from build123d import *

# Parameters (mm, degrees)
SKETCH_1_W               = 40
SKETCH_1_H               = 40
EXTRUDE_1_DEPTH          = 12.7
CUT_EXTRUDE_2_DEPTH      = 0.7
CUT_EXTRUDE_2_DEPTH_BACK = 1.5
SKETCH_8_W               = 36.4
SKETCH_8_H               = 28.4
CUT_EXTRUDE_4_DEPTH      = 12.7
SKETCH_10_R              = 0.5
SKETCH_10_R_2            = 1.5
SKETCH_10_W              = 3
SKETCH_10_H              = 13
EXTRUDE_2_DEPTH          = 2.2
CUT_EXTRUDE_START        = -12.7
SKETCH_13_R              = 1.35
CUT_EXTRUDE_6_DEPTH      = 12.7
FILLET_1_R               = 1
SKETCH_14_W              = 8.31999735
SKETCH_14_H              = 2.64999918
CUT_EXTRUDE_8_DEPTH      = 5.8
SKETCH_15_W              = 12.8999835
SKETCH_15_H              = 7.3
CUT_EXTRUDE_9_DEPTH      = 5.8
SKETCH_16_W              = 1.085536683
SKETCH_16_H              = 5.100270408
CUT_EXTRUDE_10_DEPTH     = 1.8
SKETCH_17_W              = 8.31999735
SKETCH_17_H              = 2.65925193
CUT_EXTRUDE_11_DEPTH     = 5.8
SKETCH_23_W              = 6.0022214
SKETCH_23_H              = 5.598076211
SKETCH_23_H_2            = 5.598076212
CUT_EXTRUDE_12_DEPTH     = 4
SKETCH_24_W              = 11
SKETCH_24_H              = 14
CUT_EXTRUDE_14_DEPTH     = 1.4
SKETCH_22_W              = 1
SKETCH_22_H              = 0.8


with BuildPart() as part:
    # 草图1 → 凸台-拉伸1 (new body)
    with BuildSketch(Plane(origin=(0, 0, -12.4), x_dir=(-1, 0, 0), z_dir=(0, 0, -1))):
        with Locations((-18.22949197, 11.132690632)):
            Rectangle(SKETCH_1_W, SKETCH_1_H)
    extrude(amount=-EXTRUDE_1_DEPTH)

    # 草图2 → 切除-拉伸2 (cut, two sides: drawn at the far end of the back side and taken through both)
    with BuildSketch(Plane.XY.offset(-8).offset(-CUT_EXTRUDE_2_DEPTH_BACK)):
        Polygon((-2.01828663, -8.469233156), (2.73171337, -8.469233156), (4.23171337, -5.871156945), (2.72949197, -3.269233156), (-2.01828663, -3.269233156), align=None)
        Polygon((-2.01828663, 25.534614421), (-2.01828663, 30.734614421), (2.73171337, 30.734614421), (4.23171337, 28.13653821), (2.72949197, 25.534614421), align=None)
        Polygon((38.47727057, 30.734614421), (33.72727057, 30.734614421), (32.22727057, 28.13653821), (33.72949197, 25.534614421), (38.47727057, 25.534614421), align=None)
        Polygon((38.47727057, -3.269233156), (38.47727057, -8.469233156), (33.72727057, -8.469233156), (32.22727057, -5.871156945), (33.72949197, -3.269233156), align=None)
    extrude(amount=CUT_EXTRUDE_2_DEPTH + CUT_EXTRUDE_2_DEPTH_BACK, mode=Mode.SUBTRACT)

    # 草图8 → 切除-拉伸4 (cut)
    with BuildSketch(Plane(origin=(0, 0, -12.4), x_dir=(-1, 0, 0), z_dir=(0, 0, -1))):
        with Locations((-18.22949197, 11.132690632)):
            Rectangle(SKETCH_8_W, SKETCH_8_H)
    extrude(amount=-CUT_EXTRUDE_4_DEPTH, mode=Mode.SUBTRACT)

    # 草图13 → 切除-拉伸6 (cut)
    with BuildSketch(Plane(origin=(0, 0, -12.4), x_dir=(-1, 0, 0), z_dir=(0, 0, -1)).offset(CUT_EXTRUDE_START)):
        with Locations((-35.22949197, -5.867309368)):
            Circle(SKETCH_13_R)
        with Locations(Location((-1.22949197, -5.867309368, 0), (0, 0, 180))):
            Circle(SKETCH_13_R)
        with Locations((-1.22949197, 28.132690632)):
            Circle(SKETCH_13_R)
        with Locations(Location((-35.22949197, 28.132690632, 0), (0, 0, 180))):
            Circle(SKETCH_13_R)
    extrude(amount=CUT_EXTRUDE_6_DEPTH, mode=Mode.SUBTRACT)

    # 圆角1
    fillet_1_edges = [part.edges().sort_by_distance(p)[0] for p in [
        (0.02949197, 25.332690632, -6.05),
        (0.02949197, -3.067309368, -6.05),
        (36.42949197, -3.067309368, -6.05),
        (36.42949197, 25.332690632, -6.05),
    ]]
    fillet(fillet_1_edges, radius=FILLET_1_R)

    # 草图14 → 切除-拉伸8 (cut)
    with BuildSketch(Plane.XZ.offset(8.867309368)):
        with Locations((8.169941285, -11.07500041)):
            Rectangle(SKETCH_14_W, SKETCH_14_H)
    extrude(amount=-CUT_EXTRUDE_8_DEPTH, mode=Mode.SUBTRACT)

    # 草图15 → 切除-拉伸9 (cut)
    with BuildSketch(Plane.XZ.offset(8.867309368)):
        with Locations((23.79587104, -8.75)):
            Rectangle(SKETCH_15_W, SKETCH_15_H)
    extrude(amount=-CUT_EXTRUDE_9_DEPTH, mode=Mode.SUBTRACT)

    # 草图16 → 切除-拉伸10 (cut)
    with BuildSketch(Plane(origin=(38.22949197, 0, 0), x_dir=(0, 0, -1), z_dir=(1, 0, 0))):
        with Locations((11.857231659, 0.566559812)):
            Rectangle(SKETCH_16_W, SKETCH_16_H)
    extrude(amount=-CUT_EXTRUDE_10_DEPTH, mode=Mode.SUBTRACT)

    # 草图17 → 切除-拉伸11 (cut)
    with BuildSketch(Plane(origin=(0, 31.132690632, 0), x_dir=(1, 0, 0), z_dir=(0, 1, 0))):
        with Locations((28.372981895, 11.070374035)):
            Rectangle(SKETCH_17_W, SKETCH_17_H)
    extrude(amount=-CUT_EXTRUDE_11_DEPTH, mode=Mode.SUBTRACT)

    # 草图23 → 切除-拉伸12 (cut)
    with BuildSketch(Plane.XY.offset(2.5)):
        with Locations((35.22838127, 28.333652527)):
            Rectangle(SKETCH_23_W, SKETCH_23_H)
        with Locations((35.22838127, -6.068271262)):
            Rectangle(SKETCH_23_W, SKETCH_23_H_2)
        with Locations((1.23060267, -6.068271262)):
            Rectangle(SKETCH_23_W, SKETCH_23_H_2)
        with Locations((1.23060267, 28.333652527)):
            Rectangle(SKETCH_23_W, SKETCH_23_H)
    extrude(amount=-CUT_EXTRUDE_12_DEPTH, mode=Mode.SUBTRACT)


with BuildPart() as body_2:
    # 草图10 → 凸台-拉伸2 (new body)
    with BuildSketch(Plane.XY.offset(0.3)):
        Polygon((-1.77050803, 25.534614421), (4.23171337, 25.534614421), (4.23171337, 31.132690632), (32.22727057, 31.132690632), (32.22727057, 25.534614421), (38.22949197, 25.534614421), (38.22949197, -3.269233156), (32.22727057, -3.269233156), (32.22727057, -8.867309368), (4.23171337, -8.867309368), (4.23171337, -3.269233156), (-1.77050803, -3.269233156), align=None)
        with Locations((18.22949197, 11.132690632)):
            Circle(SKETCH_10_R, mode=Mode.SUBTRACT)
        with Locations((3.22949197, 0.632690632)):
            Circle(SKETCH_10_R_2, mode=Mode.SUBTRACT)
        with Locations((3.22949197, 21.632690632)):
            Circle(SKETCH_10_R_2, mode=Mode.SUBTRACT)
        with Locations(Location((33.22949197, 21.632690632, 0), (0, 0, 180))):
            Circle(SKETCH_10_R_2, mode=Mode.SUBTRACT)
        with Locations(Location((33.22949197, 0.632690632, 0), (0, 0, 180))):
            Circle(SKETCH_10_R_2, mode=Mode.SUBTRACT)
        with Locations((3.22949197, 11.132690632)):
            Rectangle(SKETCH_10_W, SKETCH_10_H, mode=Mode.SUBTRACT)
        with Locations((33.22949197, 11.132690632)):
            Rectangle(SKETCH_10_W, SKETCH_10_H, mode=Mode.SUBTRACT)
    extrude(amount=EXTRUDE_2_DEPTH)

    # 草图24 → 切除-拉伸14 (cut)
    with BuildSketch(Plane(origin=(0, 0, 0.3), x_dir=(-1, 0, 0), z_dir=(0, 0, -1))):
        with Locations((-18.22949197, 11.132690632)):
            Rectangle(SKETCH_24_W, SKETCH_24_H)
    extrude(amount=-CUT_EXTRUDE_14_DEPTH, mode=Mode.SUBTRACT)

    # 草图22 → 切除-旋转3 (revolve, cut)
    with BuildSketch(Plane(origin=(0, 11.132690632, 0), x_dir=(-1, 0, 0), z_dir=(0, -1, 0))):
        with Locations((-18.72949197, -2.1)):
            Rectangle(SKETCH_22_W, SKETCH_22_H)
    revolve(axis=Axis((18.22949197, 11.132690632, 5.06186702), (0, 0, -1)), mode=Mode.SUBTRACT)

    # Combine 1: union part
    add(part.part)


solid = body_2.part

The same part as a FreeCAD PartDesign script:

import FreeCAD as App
import Part
import Sketcher
Q = App.Units.Quantity


def edges_at(feature, points):
    """Names of the edges that pass closest to the given points."""
    edges = feature.Shape.Edges
    near = lambda p: min(range(len(edges)), key=lambda i: edges[i].distToShape(Part.Vertex(*p))[0])
    return sorted({f"Edge{near(p) + 1}" for p in points})


def add_polygon(sketch, points):
    """Adds a closed chain of lines whose ends are joined by coincident constraints."""
    first, n = sketch.GeometryCount, len(points)
    for a, b in zip(points, points[1:] + points[:1]):
        sketch.addGeometry(Part.LineSegment(App.Vector(*a, 0), App.Vector(*b, 0)), False)
    for i in range(n):
        sketch.addConstraint(Sketcher.Constraint("Coincident", first + i, 2, first + (i + 1) % n, 1))

doc = App.newDocument("Part")
body = doc.addObject("PartDesign::Body", "Body")

sketch1 = body.newObject("Sketcher::SketchObject", "Sketch")
sketch1.AttachmentSupport = (doc.getObject("XY_Plane"), [""])
sketch1.MapMode = "FlatFace"
sketch1.AttachmentOffset = App.Placement(App.Vector(0, 0, -12.4), App.Rotation())
add_polygon(sketch1, [(38, 31), (38, -9), (-2, -9), (-2, 31)])
sketch1.addConstraint([
    Sketcher.Constraint("Vertical", 0),
    Sketcher.Constraint("Horizontal", 1),
    Sketcher.Constraint("Vertical", 2),
    Sketcher.Constraint("Horizontal", 3),
    Sketcher.Constraint("Equal", 3, 0),
    Sketcher.Constraint("DistanceX", 1, 2, 1, 1, Q("40 mm")),
    Sketcher.Constraint("DistanceX", -1, 1, 0, 2, Q("38.229492 mm")),
    Sketcher.Constraint("DistanceY", 0, 2, -1, 1, Q("8.867309 mm")),
])
pad1 = body.newObject("PartDesign::Pad", "Pad")
pad1.Profile = sketch1
pad1.Length = 12.7

sketch2 = body.newObject("Sketcher::SketchObject", "Sketch001")
sketch2.AttachmentSupport = (doc.getObject("XY_Plane"), [""])
sketch2.MapMode = "FlatFace"
sketch2.AttachmentOffset = App.Placement(App.Vector(0, 0, -8), App.Rotation())
add_polygon(sketch2, [(-2, -8.5), (2.7, -8.5), (4.2, -5.9), (2.7, -3.3), (-2, -3.3)])
add_polygon(sketch2, [(-2, 30.7), (-2, 25.5), (2.7, 25.5), (4.2, 28.1), (2.7, 30.7)])
add_polygon(sketch2, [(38.5, 30.7), (33.7, 30.7), (32.2, 28.1), (33.7, 25.5), (38.5, 25.5)])
add_polygon(sketch2, [(38.5, -8.5), (38.5, -3.3), (33.7, -3.3), (32.2, -5.9), (33.7, -8.5)])
sketch2.addConstraint([
    Sketcher.Constraint("Horizontal", 0),
    Sketcher.Constraint("Horizontal", 3),
    Sketcher.Constraint("Vertical", 4),
    Sketcher.Constraint("Vertical", 5),
    Sketcher.Constraint("Horizontal", 6),
    Sketcher.Constraint("Horizontal", 9),
    Sketcher.Constraint("Horizontal", 10),
    Sketcher.Constraint("Horizontal", 13),
    Sketcher.Constraint("Vertical", 14),
    Sketcher.Constraint("Vertical", 15),
    Sketcher.Constraint("Horizontal", 16),
    Sketcher.Constraint("Horizontal", 19),
    Sketcher.Constraint("Parallel", 1, 7),
    Sketcher.Constraint("Parallel", 2, 8),
    Sketcher.Constraint("Parallel", 7, 11),
    Sketcher.Constraint("Parallel", 8, 12),
    Sketcher.Constraint("Parallel", 11, 17),
    Sketcher.Constraint("Parallel", 12, 18),
    Sketcher.Constraint("Horizontal", 9, 2, 10, 2),
    Sketcher.Constraint("Horizontal", 7, 2, 11, 2),
    Sketcher.Constraint("Horizontal", 6, 2, 12, 2),
    Sketcher.Constraint("Horizontal", 3, 2, 15, 2),
    Sketcher.Constraint("Horizontal", 1, 2, 17, 2),
    Sketcher.Constraint("Horizontal", 4, 2, 18, 2),
    Sketcher.Constraint("Vertical", 4, 2, 5, 2),
    Sketcher.Constraint("Vertical", 2, 2, 6, 2),
    Sketcher.Constraint("Vertical", 1, 2, 7, 2),
    Sketcher.Constraint("Vertical", 0, 2, 8, 2),
    Sketcher.Constraint("Vertical", 14, 2, 15, 2),
    Sketcher.Constraint("Vertical", 12, 2, 16, 2),
    Sketcher.Constraint("Vertical", 11, 2, 17, 2),
    Sketcher.Constraint("Equal", 9, 10),
    Sketcher.Constraint("Angle", 1, Q("60 deg")),
    Sketcher.Constraint("Distance", 1, Q("3 mm")),
    Sketcher.Constraint("DistanceY", 4, 2, 4, 1, Q("5.2 mm")),
    Sketcher.Constraint("DistanceX", 6, 2, 12, 2, Q("31 mm")),
    Sketcher.Constraint("DistanceX", 0, 1, 0, 2, Q("4.75 mm")),
    Sketcher.Constraint("DistanceX", -1, 1, 2, 2, Q("2.729492 mm")),
    Sketcher.Constraint("DistanceY", -1, 1, 7, 2, Q("28.136538 mm")),
    Sketcher.Constraint("DistanceY", 1, 2, 5, 2, Q("31.405771 mm")),
])
pocket1 = body.newObject("PartDesign::Pocket", "Pocket")
pocket1.Profile = sketch2
pocket1.Type = "TwoLengths"
pocket1.Length = 0.7
pocket1.Length2 = 1.5
pocket1.Reversed = True

sketch3 = body.newObject("Sketcher::SketchObject", "Sketch002")
sketch3.AttachmentSupport = (doc.getObject("XY_Plane"), [""])
sketch3.MapMode = "FlatFace"
sketch3.AttachmentOffset = App.Placement(App.Vector(0, 0, -12.4), App.Rotation())
add_polygon(sketch3, [(36, 25), (36, -3), (0, -3), (0, 25)])
sketch3.addConstraint([
    Sketcher.Constraint("Vertical", 0),
    Sketcher.Constraint("Horizontal", 1),
    Sketcher.Constraint("Vertical", 2),
    Sketcher.Constraint("Horizontal", 3),
    Sketcher.Constraint("DistanceX", 1, 2, 1, 1, Q("36.4 mm")),
    Sketcher.Constraint("DistanceY", 0, 2, 0, 1, Q("28.4 mm")),
    Sketcher.Constraint("DistanceX", -1, 1, 0, 2, Q("36.429492 mm")),
    Sketcher.Constraint("DistanceY", 0, 2, -1, 1, Q("3.067309 mm")),
])
pocket2 = body.newObject("PartDesign::Pocket", "Pocket001")
pocket2.Profile = sketch3
pocket2.Length = 12.7
pocket2.Reversed = True

sketch4 = body.newObject("Sketcher::SketchObject", "Sketch003")
sketch4.AttachmentSupport = (doc.getObject("XY_Plane"), [""])
sketch4.MapMode = "FlatFace"
sketch4.AttachmentOffset = App.Placement(App.Vector(0, 0, 0.3), App.Rotation())
sketch4.addGeometry([
    Part.Circle(App.Vector(35.2, -5.9, 0), App.Vector(0, 0, 1), 1.4),
    Part.Circle(App.Vector(1.2, -5.9, 0), App.Vector(0, 0, 1), 1.4),
    Part.Circle(App.Vector(1.2, 28.1, 0), App.Vector(0, 0, 1), 1.4),
    Part.Circle(App.Vector(35.2, 28.1, 0), App.Vector(0, 0, 1), 1.4),
], False)
sketch4.addConstraint([
    Sketcher.Constraint("Equal", 0, 1),
    Sketcher.Constraint("Equal", 1, 2),
    Sketcher.Constraint("Equal", 2, 3),
    Sketcher.Constraint("Horizontal", 0, 3, 1, 3),
    Sketcher.Constraint("Horizontal", 2, 3, 3, 3),
    Sketcher.Constraint("Vertical", 1, 3, 2, 3),
    Sketcher.Constraint("Vertical", 0, 3, 3, 3),
    Sketcher.Constraint("Diameter", 0, Q("2.7 mm")),
    Sketcher.Constraint("DistanceX", 1, 3, 0, 3, Q("34 mm")),
    Sketcher.Constraint("DistanceY", 1, 3, 2, 3, Q("34 mm")),
    Sketcher.Constraint("DistanceX", -1, 1, 0, 3, Q("35.229492 mm")),
    Sketcher.Constraint("DistanceY", 0, 3, -1, 1, Q("5.867309 mm")),
])
pocket3 = body.newObject("PartDesign::Pocket", "Pocket002")
pocket3.Profile = sketch4
pocket3.Length = 12.7
doc.recompute()

fillet = body.newObject("PartDesign::Fillet", "Fillet")
fillet.Base = (pocket3, edges_at(pocket3, [
    (0.029, 25.333, -6.05),
    (0.029, -3.067, -6.05),
    (36.429, -3.067, -6.05),
    (36.429, 25.333, -6.05),
]))
fillet.Radius = 1

sketch5 = body.newObject("Sketcher::SketchObject", "Sketch004")
sketch5.AttachmentSupport = (doc.getObject("XZ_Plane"), [""])
sketch5.MapMode = "FlatFace"
sketch5.AttachmentOffset = App.Placement(App.Vector(0, 0, 8.867309), App.Rotation())
add_polygon(sketch5, [(4, -9.8), (4, -12.4), (12.3, -12.4), (12.3, -9.8)])
sketch5.addConstraint([
    Sketcher.Constraint("Vertical", 0),
    Sketcher.Constraint("Horizontal", 1),
    Sketcher.Constraint("Vertical", 2),
    Sketcher.Constraint("Horizontal", 3),
    Sketcher.Constraint("DistanceY", 0, 2, 0, 1, Q("2.649999 mm")),
    Sketcher.Constraint("DistanceY", 0, 2, -1, 1, Q("12.4 mm")),
    Sketcher.Constraint("DistanceX", 1, 1, 1, 2, Q("8.319997 mm")),
    Sketcher.Constraint("DistanceX", -1, 1, 1, 2, Q("12.32994 mm")),
])
pocket4 = body.newObject("PartDesign::Pocket", "Pocket003")
pocket4.Profile = sketch5
pocket4.Length = 5.8

sketch6 = body.newObject("Sketcher::SketchObject", "Sketch005")
sketch6.AttachmentSupport = (doc.getObject("XZ_Plane"), [""])
sketch6.MapMode = "FlatFace"
sketch6.AttachmentOffset = App.Placement(App.Vector(0, 0, 8.867309), App.Rotation())
add_polygon(sketch6, [(17, -5), (17, -12), (30, -12), (30, -5)])
sketch6.addConstraint([
    Sketcher.Constraint("Vertical", 0),
    Sketcher.Constraint("Horizontal", 1),
    Sketcher.Constraint("Vertical", 2),
    Sketcher.Constraint("Horizontal", 3),
    Sketcher.Constraint("DistanceY", 0, 2, 0, 1, Q("7.3 mm")),
    Sketcher.Constraint("DistanceY", 0, 2, -1, 1, Q("12.4 mm")),
    Sketcher.Constraint("DistanceX", 1, 1, 1, 2, Q("12.899984 mm")),
    Sketcher.Constraint("DistanceX", -1, 1, 0, 2, Q("17.345879 mm")),
])
pocket5 = body.newObject("PartDesign::Pocket", "Pocket004")
pocket5.Profile = sketch6
pocket5.Length = 5.8

sketch7 = body.newObject("Sketcher::SketchObject", "Sketch006")
sketch7.AttachmentSupport = (doc.getObject("YZ_Plane"), [""])
sketch7.MapMode = "FlatFace"
sketch7.AttachmentOffset = App.Placement(App.Vector(0, 0, 38.229492), App.Rotation())
add_polygon(sketch7, [(3.1, -11.3), (-2, -11.3), (-2, -12.4), (3.1, -12.4)])
sketch7.addConstraint([
    Sketcher.Constraint("Horizontal", 0),
    Sketcher.Constraint("Vertical", 1),
    Sketcher.Constraint("Horizontal", 2),
    Sketcher.Constraint("Vertical", 3),
    Sketcher.Constraint("DistanceY", 1, 2, -1, 1, Q("12.4 mm")),
    Sketcher.Constraint("DistanceX", 0, 2, 0, 1, Q("5.10027 mm")),
    Sketcher.Constraint("DistanceY", 1, 2, 1, 1, Q("1.085537 mm")),
    Sketcher.Constraint("DistanceX", 0, 2, -1, 1, Q("1.983575 mm")),
])
pocket6 = body.newObject("PartDesign::Pocket", "Pocket005")
pocket6.Profile = sketch7
pocket6.Length = 1.8

sketch8 = body.newObject("Sketcher::SketchObject", "Sketch007")
sketch8.AttachmentSupport = (doc.getObject("XZ_Plane"), [""])
sketch8.MapMode = "FlatFace"
sketch8.AttachmentOffset = App.Placement(App.Vector(0, 0, -31.132691), App.Rotation())
add_polygon(sketch8, [(24.2, -12.4), (24.2, -9.7), (32.5, -9.7), (32.5, -12.4)])
sketch8.addConstraint([
    Sketcher.Constraint("Vertical", 0),
    Sketcher.Constraint("Horizontal", 1),
    Sketcher.Constraint("Vertical", 2),
    Sketcher.Constraint("Horizontal", 3),
    Sketcher.Constraint("DistanceY", 2, 2, -1, 1, Q("12.4 mm")),
    Sketcher.Constraint("DistanceY", 0, 1, 0, 2, Q("2.659252 mm")),
    Sketcher.Constraint("DistanceX", 1, 1, 1, 2, Q("8.319997 mm")),
    Sketcher.Constraint("DistanceX", -1, 1, 1, 2, Q("32.532981 mm")),
])
pocket7 = body.newObject("PartDesign::Pocket", "Pocket006")
pocket7.Profile = sketch8
pocket7.Length = 5.8
pocket7.Reversed = True

sketch9 = body.newObject("Sketcher::SketchObject", "Sketch008")
sketch9.AttachmentSupport = (doc.getObject("XY_Plane"), [""])
sketch9.MapMode = "FlatFace"
sketch9.AttachmentOffset = App.Placement(App.Vector(0, 0, 2.5), App.Rotation())
add_polygon(sketch9, [(32, 31), (32, 26), (38, 26), (38, 31)])
add_polygon(sketch9, [(32, -3), (32, -9), (38, -9), (38, -3)])
add_polygon(sketch9, [(-2, -3), (-2, -9), (4, -9), (4, -3)])
add_polygon(sketch9, [(-2, 31), (-2, 26), (4, 26), (4, 31)])
sketch9.addConstraint([
    Sketcher.Constraint("Vertical", 0),
    Sketcher.Constraint("Horizontal", 1),
    Sketcher.Constraint("Vertical", 2),
    Sketcher.Constraint("Horizontal", 3),
    Sketcher.Constraint("Vertical", 4),
    Sketcher.Constraint("Horizontal", 5),
    Sketcher.Constraint("Vertical", 6),
    Sketcher.Constraint("Horizontal", 7),
    Sketcher.Constraint("Vertical", 8),
    Sketcher.Constraint("Horizontal", 9),
    Sketcher.Constraint("Vertical", 10),
    Sketcher.Constraint("Horizontal", 11),
    Sketcher.Constraint("Vertical", 12),
    Sketcher.Constraint("Horizontal", 13),
    Sketcher.Constraint("Vertical", 14),
    Sketcher.Constraint("Horizontal", 15),
    Sketcher.Constraint("Horizontal", 5, 2, 8, 2),
    Sketcher.Constraint("Horizontal", 7, 2, 10, 2),
    Sketcher.Constraint("Horizontal", 1, 2, 12, 2),
    Sketcher.Constraint("Horizontal", 3, 2, 14, 2),
    Sketcher.Constraint("Vertical", 3, 2, 4, 2),
    Sketcher.Constraint("Vertical", 2, 2, 5, 2),
    Sketcher.Constraint("Vertical", 11, 2, 12, 2),
    Sketcher.Constraint("Vertical", 10, 2, 13, 2),
    Sketcher.Constraint("Equal", 7, 9),
    Sketcher.Constraint("Equal", 2, 4),
    Sketcher.Constraint("DistanceY", 4, 2, 3, 2, Q("40 mm")),
    Sketcher.Constraint("DistanceX", 8, 2, 5, 2, Q("40 mm")),
    Sketcher.Constraint("DistanceX", 1, 1, 1, 2, Q("6.002221 mm")),
    Sketcher.Constraint("DistanceY", 0, 2, 0, 1, Q("5.598076 mm")),
    Sketcher.Constraint("DistanceX", -1, 1, 0, 2, Q("32.227271 mm")),
    Sketcher.Constraint("DistanceY", -1, 1, 2, 2, Q("31.132691 mm")),
])
pocket8 = body.newObject("PartDesign::Pocket", "Pocket007")
pocket8.Profile = sketch9
pocket8.Length = 4
body2 = doc.addObject("PartDesign::Body", "Body001")

sketch10 = body2.newObject("Sketcher::SketchObject", "Sketch009")
sketch10.AttachmentSupport = (doc.getObject("XY_Plane001"), [""])
sketch10.MapMode = "FlatFace"
sketch10.AttachmentOffset = App.Placement(App.Vector(0, 0, 0.3), App.Rotation())
add_polygon(sketch10, [(4.2, 25.5), (-1.8, 25.5), (-1.8, -3.3), (4.2, -3.3), (4.2, -8.9), (32.2, -8.9), (32.2, -3.3), (38.2, -3.3), (38.2, 25.5), (32.2, 25.5), (32.2, 31.1), (4.2, 31.1)])
sketch10.addGeometry(Part.Circle(App.Vector(33.2, 0.6, 0), App.Vector(0, 0, 1), 1.5), False)
sketch10.addGeometry(Part.Circle(App.Vector(3.2, 0.6, 0), App.Vector(0, 0, 1), 1.5), False)
add_polygon(sketch10, [(31.7, 4.6), (31.7, 17.6), (34.7, 17.6), (34.7, 4.6)])
sketch10.addGeometry(Part.Circle(App.Vector(18.2, 11.1, 0), App.Vector(0, 0, 1), 0.5), False)
sketch10.addGeometry(Part.Circle(App.Vector(33.2, 21.6, 0), App.Vector(0, 0, 1), 1.5), False)
add_polygon(sketch10, [(1.7, 4.6), (1.7, 17.6), (4.7, 17.6), (4.7, 4.6)])
sketch10.addGeometry(Part.Circle(App.Vector(3.2, 21.6, 0), App.Vector(0, 0, 1), 1.5), False)
sketch10.addConstraint([
    Sketcher.Constraint("Horizontal", 0),
    Sketcher.Constraint("Vertical", 1),
    Sketcher.Constraint("Horizontal", 2),
    Sketcher.Constraint("Vertical", 3),
    Sketcher.Constraint("Horizontal", 4),
    Sketcher.Constraint("Vertical", 5),
    Sketcher.Constraint("Horizontal", 6),
    Sketcher.Constraint("Vertical", 7),
    Sketcher.Constraint("Horizontal", 8),
    Sketcher.Constraint("Vertical", 9),
    Sketcher.Constraint("Horizontal", 10),
    Sketcher.Constraint("Vertical", 11),
    Sketcher.Constraint("Vertical", 14),
    Sketcher.Constraint("Horizontal", 15),
    Sketcher.Constraint("Vertical", 16),
    Sketcher.Constraint("Horizontal", 17),
    Sketcher.Constraint("Vertical", 20),
    Sketcher.Constraint("Horizontal", 21),
    Sketcher.Constraint("Vertical", 22),
    Sketcher.Constraint("Horizontal", 23),
    Sketcher.Constraint("Equal", 12, 13),
    Sketcher.Constraint("Equal", 13, 19),
    Sketcher.Constraint("Equal", 19, 24),
    Sketcher.Constraint("Horizontal", 12, 3, 13, 3),
    Sketcher.Constraint("Horizontal", 19, 3, 24, 3),
    Sketcher.Constraint("Horizontal", 2, 2, 5, 2),
    Sketcher.Constraint("Horizontal", 0, 2, 7, 2),
    Sketcher.Constraint("Horizontal", 15, 2, 20, 2),
    Sketcher.Constraint("Horizontal", 17, 2, 22, 2),
    Sketcher.Constraint("Vertical", 12, 3, 19, 3),
    Sketcher.Constraint("Vertical", 13, 3, 24, 3),
    Sketcher.Constraint("Vertical", 5, 2, 8, 2),
    Sketcher.Constraint("Vertical", 3, 2, 10, 2),
    Sketcher.Constraint("Equal", 2, 6),
    Sketcher.Constraint("Equal", 17, 21),
    Sketcher.Constraint("Equal", 5, 9),
    Sketcher.Constraint("Diameter", 12, Q("3 mm")),
    Sketcher.Constraint("Diameter", 18, Q("1 mm")),
    Sketcher.Constraint("DistanceX", 15, 1, 15, 2, Q("3 mm")),
    Sketcher.Constraint("DistanceY", 14, 1, 14, 2, Q("13 mm")),
    Sketcher.Constraint("DistanceX", 13, 3, 12, 3, Q("30 mm")),
    Sketcher.Constraint("DistanceX", 18, 3, 12, 3, Q("15 mm")),
    Sketcher.Constraint("DistanceY", 12, 3, 19, 3, Q("21 mm")),
    Sketcher.Constraint("DistanceX", 0, 2, 24, 3, Q("5 mm")),
    Sketcher.Constraint("DistanceY", 3, 2, 18, 3, Q("20 mm")),
    Sketcher.Constraint("DistanceX", 12, 3, 6, 2, Q("5 mm")),
    Sketcher.Constraint("DistanceY", 18, 3, 9, 2, Q("20 mm")),
    Sketcher.Constraint("DistanceY", 14, 2, 19, 3, Q("4 mm")),
    Sketcher.Constraint("DistanceY", 12, 3, 18, 3, Q("10.5 mm")),
    Sketcher.Constraint("DistanceX", 14, 2, 19, 3, Q("1.5 mm")),
    Sketcher.Constraint("DistanceX", 20, 2, 24, 3, Q("1.5 mm")),
    Sketcher.Constraint("DistanceX", 0, 2, 0, 1, Q("6.002221 mm")),
    Sketcher.Constraint("DistanceY", 1, 2, 1, 1, Q("28.803848 mm")),
    Sketcher.Constraint("DistanceX", -1, 1, 12, 3, Q("33.229492 mm")),
    Sketcher.Constraint("DistanceY", -1, 1, 12, 3, Q("0.632691 mm")),
])
pad2 = body2.newObject("PartDesign::Pad", "Pad001")
pad2.Profile = sketch10
pad2.Length = 2.2

sketch11 = body2.newObject("Sketcher::SketchObject", "Sketch010")
sketch11.AttachmentSupport = (doc.getObject("XY_Plane001"), [""])
sketch11.MapMode = "FlatFace"
sketch11.AttachmentOffset = App.Placement(App.Vector(0, 0, 0.3), App.Rotation())
add_polygon(sketch11, [(24, 18), (24, 4), (13, 4), (13, 18)])
sketch11.addConstraint([
    Sketcher.Constraint("Vertical", 0),
    Sketcher.Constraint("Horizontal", 1),
    Sketcher.Constraint("Vertical", 2),
    Sketcher.Constraint("Horizontal", 3),
    Sketcher.Constraint("DistanceX", 1, 2, 1, 1, Q("11 mm")),
    Sketcher.Constraint("DistanceY", 0, 2, 0, 1, Q("14 mm")),
    Sketcher.Constraint("DistanceX", -1, 1, 0, 2, Q("23.729492 mm")),
    Sketcher.Constraint("DistanceY", -1, 1, 0, 2, Q("4.132691 mm")),
])
pocket9 = body2.newObject("PartDesign::Pocket", "Pocket008")
pocket9.Profile = sketch11
pocket9.Length = 1.4
pocket9.Reversed = True

sketch12 = body2.newObject("Sketcher::SketchObject", "Sketch011")
sketch12.AttachmentSupport = (doc.getObject("XZ_Plane001"), [""])
sketch12.MapMode = "FlatFace"
sketch12.AttachmentOffset = App.Placement(App.Vector(0, 0, -11.132691), App.Rotation())
add_polygon(sketch12, [(19.2, 1.7), (19.2, 2.5), (18.2, 2.5), (18.2, 1.7)])
sketch12.addGeometry(Part.LineSegment(App.Vector(18.2, 2.5, 0), App.Vector(18.2, 1.7, 0)), True)
sketch12.addConstraint([
    Sketcher.Constraint("Vertical", 0),
    Sketcher.Constraint("Horizontal", 1),
    Sketcher.Constraint("Vertical", 2),
    Sketcher.Constraint("Horizontal", 3),
    Sketcher.Constraint("Vertical", 4),
    Sketcher.Constraint("Coincident", 4, 1, 1, 2),
    Sketcher.Constraint("Horizontal", 3, 2, 4, 2),
    Sketcher.Constraint("DistanceX", 1, 2, 1, 1, Q("1 mm")),
    Sketcher.Constraint("DistanceY", 0, 1, 0, 2, Q("0.8 mm")),
    Sketcher.Constraint("DistanceY", -1, 1, 0, 2, Q("2.5 mm")),
    Sketcher.Constraint("DistanceX", -1, 1, 0, 2, Q("19.229492 mm")),
])
groove = body2.newObject("PartDesign::Groove", "Groove")
groove.Profile = sketch12
groove.ReferenceAxis = (sketch12, ["Axis0"])
groove.Angle = 360
doc.recompute()

boolean = body2.newObject("PartDesign::Boolean", "Boolean")
boolean.Type = "Fuse"
boolean.addObjects([body])

doc.recompute()
